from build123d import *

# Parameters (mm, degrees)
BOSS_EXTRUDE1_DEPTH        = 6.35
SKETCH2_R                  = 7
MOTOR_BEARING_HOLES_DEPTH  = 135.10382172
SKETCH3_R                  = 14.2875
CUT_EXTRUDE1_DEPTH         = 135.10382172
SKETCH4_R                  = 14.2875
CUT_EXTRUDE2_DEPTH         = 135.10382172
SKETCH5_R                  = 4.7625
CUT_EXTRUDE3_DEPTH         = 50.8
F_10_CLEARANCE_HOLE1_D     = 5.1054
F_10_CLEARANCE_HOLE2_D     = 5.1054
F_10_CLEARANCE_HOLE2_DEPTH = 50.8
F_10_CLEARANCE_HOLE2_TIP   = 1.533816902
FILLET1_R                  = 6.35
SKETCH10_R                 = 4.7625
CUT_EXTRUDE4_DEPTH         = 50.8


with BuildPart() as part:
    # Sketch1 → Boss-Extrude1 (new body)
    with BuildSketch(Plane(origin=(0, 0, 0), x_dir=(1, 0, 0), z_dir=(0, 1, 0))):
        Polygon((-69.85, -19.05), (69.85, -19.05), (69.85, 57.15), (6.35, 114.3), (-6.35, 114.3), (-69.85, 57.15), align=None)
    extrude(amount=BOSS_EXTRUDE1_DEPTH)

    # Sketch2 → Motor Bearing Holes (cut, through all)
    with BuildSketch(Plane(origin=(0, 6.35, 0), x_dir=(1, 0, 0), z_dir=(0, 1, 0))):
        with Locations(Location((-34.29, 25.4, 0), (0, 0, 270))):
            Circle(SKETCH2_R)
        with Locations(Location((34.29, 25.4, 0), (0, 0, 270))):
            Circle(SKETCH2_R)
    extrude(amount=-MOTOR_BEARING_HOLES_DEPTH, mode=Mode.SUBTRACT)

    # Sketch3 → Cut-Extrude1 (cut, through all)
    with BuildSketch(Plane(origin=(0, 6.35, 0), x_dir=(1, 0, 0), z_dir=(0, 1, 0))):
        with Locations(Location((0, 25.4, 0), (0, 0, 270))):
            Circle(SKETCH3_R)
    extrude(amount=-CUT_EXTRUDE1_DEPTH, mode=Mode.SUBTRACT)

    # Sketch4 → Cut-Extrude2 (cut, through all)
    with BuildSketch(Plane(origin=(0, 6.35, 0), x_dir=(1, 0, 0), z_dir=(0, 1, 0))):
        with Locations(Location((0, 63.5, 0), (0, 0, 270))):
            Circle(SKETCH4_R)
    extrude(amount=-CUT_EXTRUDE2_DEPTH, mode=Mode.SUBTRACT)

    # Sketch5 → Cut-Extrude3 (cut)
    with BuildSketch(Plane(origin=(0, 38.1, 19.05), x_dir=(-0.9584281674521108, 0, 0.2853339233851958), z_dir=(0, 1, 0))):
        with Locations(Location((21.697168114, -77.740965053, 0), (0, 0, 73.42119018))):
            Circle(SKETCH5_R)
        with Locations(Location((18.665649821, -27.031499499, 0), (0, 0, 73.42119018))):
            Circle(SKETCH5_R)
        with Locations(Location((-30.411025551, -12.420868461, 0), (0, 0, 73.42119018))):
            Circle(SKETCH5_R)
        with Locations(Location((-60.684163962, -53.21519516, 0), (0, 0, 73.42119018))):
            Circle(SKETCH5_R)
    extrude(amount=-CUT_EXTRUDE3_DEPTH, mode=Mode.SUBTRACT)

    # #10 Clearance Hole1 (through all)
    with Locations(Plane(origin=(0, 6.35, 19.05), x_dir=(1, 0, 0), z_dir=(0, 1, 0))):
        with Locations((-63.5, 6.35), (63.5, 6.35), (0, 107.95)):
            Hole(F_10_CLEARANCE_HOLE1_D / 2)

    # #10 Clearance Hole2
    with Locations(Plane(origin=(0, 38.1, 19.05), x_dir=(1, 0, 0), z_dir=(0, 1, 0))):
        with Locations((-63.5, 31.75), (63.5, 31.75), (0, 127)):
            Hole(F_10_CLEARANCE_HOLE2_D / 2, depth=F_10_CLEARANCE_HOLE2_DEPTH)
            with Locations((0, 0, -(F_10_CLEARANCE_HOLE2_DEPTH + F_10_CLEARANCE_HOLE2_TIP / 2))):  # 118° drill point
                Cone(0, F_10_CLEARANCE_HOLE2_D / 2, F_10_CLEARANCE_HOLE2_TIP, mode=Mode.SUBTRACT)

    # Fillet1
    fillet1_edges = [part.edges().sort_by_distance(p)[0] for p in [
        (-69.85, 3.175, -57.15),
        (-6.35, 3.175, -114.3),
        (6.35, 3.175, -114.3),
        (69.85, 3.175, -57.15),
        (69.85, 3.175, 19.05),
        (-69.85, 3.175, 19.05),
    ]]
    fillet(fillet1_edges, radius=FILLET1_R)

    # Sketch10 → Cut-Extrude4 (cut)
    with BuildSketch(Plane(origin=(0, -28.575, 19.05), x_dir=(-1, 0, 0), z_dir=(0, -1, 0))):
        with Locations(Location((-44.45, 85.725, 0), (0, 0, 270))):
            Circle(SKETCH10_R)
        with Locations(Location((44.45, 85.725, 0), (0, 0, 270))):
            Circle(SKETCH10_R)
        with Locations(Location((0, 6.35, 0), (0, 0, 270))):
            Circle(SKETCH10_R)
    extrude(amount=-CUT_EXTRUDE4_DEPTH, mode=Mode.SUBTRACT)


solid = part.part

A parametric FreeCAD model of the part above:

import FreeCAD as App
import Part
import Sketcher
Q = App.Units.Quantity


def edges_at(feature, points):
    """Names of the edges that pass closest to the given points."""
    edges = feature.Shape.Edges
    near = lambda p: min(range(len(edges)), key=lambda i: edges[i].distToShape(Part.Vertex(*p))[0])
    return sorted({f"Edge{near(p) + 1}" for p in points})


def add_polygon(sketch, points):
    """Adds a closed chain of lines whose ends are joined by coincident constraints."""
    first, n = sketch.GeometryCount, len(points)
    for a, b in zip(points, points[1:] + points[:1]):
        sketch.addGeometry(Part.LineSegment(App.Vector(*a, 0), App.Vector(*b, 0)), False)
    for i in range(n):
        sketch.addConstraint(Sketcher.Constraint("Coincident", first + i, 2, first + (i + 1) % n, 1))

doc = App.newDocument("Part")
body = doc.addObject("PartDesign::Body", "Body")

# Sketch on XZ plane
sketch1 = body.newObject("Sketcher::SketchObject", "Sketch")
sketch1.AttachmentSupport = (doc.getObject("XZ_Plane"), [""])
sketch1.MapMode = "FlatFace"
add_polygon(sketch1, [(-70, 19), (70, 19), (70, -57), (6, -114), (-6, -114), (-70, -57)])  # lines 0-5
sketch1.addConstraint([
    Sketcher.Constraint("Horizontal", 0),
    Sketcher.Constraint("Vertical", 1),
    Sketcher.Constraint("Horizontal", 3),
    Sketcher.Constraint("Vertical", 5),
    Sketcher.Constraint("Symmetric", 1, 2, 4, 2, -2),
    Sketcher.Constraint("Equal", 2, 4),
    Sketcher.Constraint("DistanceY", 1, 2, 1, 1, Q("3 in")),
    Sketcher.Constraint("DistanceX", 0, 1, 0, 2, Q("5.5 in")),
    Sketcher.Constraint("DistanceX", 3, 2, 3, 1, Q("0.5 in")),
    Sketcher.Constraint("DistanceY", 2, 2, -1, 1, Q("4.5 in")),
    Sketcher.Constraint("DistanceY", -1, 1, 0, 2, Q("0.75 in")),
])
pad1 = body.newObject("PartDesign::Pad", "Pad")
pad1.Profile = sketch1
pad1.Length = Q("0.25 in")
pad1.Reversed = True

# Sketch on XZ plane
sketch2 = body.newObject("Sketcher::SketchObject", "Sketch001")
sketch2.AttachmentSupport = (doc.getObject("XZ_Plane"), [""])
sketch2.MapMode = "FlatFace"
sketch2.AttachmentOffset = App.Placement(App.Vector(0, 0, -0.25 * 25.4), App.Rotation())
sketch2.addGeometry([
    Part.Circle(App.Vector(-34, -25, 0), App.Vector(0, 0, 1), 7),
    Part.Circle(App.Vector(34, -25, 0), App.Vector(0, 0, 1), 7),
], False)
sketch2.addConstraint([
    Sketcher.Constraint("Equal", 0, 1),
    Sketcher.Constraint("Symmetric", 0, 3, 1, 3, -2),
    Sketcher.Constraint("DistanceY", 0, 3, -1, 1, Q("1 in")),
    Sketcher.Constraint("DistanceX", 0, 3, 1, 3, Q("2.7 in")),
    Sketcher.Constraint("Diameter", 0, Q("14 mm")),
])
pocket1 = body.newObject("PartDesign::Pocket", "Pocket")
pocket1.Profile = sketch2
pocket1.Type = "ThroughAll"
pocket1.Reversed = True

# Sketch on XZ plane
sketch3 = body.newObject("Sketcher::SketchObject", "Sketch002")
sketch3.AttachmentSupport = (doc.getObject("XZ_Plane"), [""])
sketch3.MapMode = "FlatFace"
sketch3.AttachmentOffset = App.Placement(App.Vector(0, 0, -0.25 * 25.4), App.Rotation())
sketch3.addGeometry(Part.Circle(App.Vector(0, -25, 0), App.Vector(0, 0, 1), 14), False)
sketch3.addConstraint([
    Sketcher.Constraint("PointOnObject", 0, 3, -2),
    Sketcher.Constraint("Diameter", 0, Q("1.125 in")),
    Sketcher.Constraint("DistanceY", 0, 3, -1, 1, Q("1 in")),
])
pocket2 = body.newObject("PartDesign::Pocket", "Pocket001")
pocket2.Profile = sketch3
pocket2.Type = "ThroughAll"
pocket2.Reversed = True

# Sketch on XZ plane
sketch4 = body.newObject("Sketcher::SketchObject", "Sketch003")
sketch4.AttachmentSupport = (doc.getObject("XZ_Plane"), [""])
sketch4.MapMode = "FlatFace"
sketch4.AttachmentOffset = App.Placement(App.Vector(0, 0, -0.25 * 25.4), App.Rotation())
sketch4.addGeometry(Part.Circle(App.Vector(0, -64, 0), App.Vector(0, 0, 1), 14), False)
sketch4.addConstraint([
    Sketcher.Constraint("PointOnObject", 0, 3, -2),
    Sketcher.Constraint("Diameter", 0, Q("1.125 in")),
    Sketcher.Constraint("DistanceY", 0, 3, -1, 1, Q("2.5 in")),
])
pocket3 = body.newObject("PartDesign::Pocket", "Pocket002")
pocket3.Profile = sketch4
pocket3.Type = "ThroughAll"
pocket3.Reversed = True

# Sketch on XZ plane
sketch5 = body.newObject("Sketcher::SketchObject", "Sketch004")
sketch5.AttachmentSupport = (doc.getObject("XZ_Plane"), [""])
sketch5.MapMode = "FlatFace"
sketch5.AttachmentOffset = App.Placement(App.Vector(0, 0, -1.5 * 25.4), App.Rotation())
sketch5.addGeometry([
    Part.Circle(App.Vector(-43, -49.3, 0), App.Vector(0, 0, 1), 4.8),
    Part.Circle(App.Vector(-25.6, -1.5, 0), App.Vector(0, 0, 1), 4.8),
    Part.Circle(App.Vector(25.6, -1.5, 0), App.Vector(0, 0, 1), 4.8),
    Part.Circle(App.Vector(43, -49.3, 0), App.Vector(0, 0, 1), 4.8),
], False)
sketch5.addConstraint([
    Sketcher.Constraint("Equal", 0, 1),
    Sketcher.Constraint("Equal", 1, 2),
    Sketcher.Constraint("Equal", 2, 3),
    Sketcher.Constraint("Symmetric", 1, 3, 2, 3, -2),
    Sketcher.Constraint("Symmetric", 0, 3, 3, 3, -2),
    Sketcher.Constraint("Diameter", 0, Q("0.375 in")),
    Sketcher.Constraint("DistanceX", 0, 3, 2, 3, Q("2.7 in")),
    Sketcher.Constraint("DistanceX", 0, 3, -1, 1, Q("42.977312 mm")),
    Sketcher.Constraint("DistanceY", 0, 3, -1, 1, Q("49.268193 mm")),
    Sketcher.Constraint("DistanceY", 1, 3, -1, 1, Q("1.531807 mm")),
])
pocket4 = body.newObject("PartDesign::Pocket", "Pocket003")
pocket4.Profile = sketch5
pocket4.Length = Q("2 in")
pocket4.Reversed = True

# Sketch on XZ plane
sketch6 = body.newObject("Sketcher::SketchObject", "Sketch005")
sketch6.AttachmentSupport = (doc.getObject("XZ_Plane"), [""])
sketch6.MapMode = "FlatFace"
sketch6.AttachmentOffset = App.Placement(App.Vector(0, 0, -0.25 * 25.4), App.Rotation())
sketch6.addGeometry([
    Part.Circle(App.Vector(-63.5, 12.7, 0), App.Vector(0, 0, 1), 2.6),
    Part.Circle(App.Vector(63.5, 12.7, 0), App.Vector(0, 0, 1), 2.6),
    Part.Circle(App.Vector(0, -88.9, 0), App.Vector(0, 0, 1), 2.6),
], False)
sketch6.addConstraint([
    Sketcher.Constraint("Equal", 0, 1),
    Sketcher.Constraint("Equal", 1, 2),
    Sketcher.Constraint("Symmetric", 0, 3, 1, 3, -2),
    Sketcher.Constraint("PointOnObject", 2, 3, -2),
    Sketcher.Constraint("Diameter", 0, Q("0.201 in")),
    Sketcher.Constraint("DistanceX", 0, 3, 1, 3, Q("5 in")),
    Sketcher.Constraint("DistanceY", 2, 3, 0, 3, Q("4 in")),
    Sketcher.Constraint("DistanceY", -1, 1, 0, 3, Q("0.5 in")),
])
doc.recompute()
hole = body.newObject("PartDesign::Hole", "Hole")
hole.Profile = sketch6
hole.ThreadType = "None"
hole.Diameter = Q("0.201 in")
hole.DepthType = "ThroughAll"
hole.Reversed = True

# Sketch on XZ plane
sketch7 = body.newObject("Sketcher::SketchObject", "Sketch006")
sketch7.AttachmentSupport = (doc.getObject("XZ_Plane"), [""])
sketch7.MapMode = "FlatFace"
sketch7.AttachmentOffset = App.Placement(App.Vector(0, 0, -1.5 * 25.4), App.Rotation())
sketch7.addGeometry([
    Part.Circle(App.Vector(-63.5, -12.7, 0), App.Vector(0, 0, 1), 2.6),
    Part.Circle(App.Vector(63.5, -12.7, 0), App.Vector(0, 0, 1), 2.6),
    Part.Circle(App.Vector(0, -108, 0), App.Vector(0, 0, 1), 2.6),
], False)
sketch7.addConstraint([
    Sketcher.Constraint("Equal", 0, 1),
    Sketcher.Constraint("Equal", 1, 2),
    Sketcher.Constraint("Symmetric", 0, 3, 1, 3, -2),
    Sketcher.Constraint("PointOnObject", 2, 3, -2),
    Sketcher.Constraint("Diameter", 0, Q("0.201 in")),
    Sketcher.Constraint("DistanceX", 0, 3, 1, 3, Q("5 in")),
    Sketcher.Constraint("DistanceY", 0, 3, -1, 1, Q("0.5 in")),
    Sketcher.Constraint("DistanceY", 2, 3, -1, 1, Q("4.25 in")),
])
doc.recompute()
hole2 = body.newObject("PartDesign::Hole", "Hole001")
hole2.Profile = sketch7
hole2.ThreadType = "None"
hole2.Diameter = Q("0.201 in")
hole2.DepthType = "Dimension"
hole2.Depth = Q("2 in")
hole2.DrillPoint = "Angled"
hole2.DrillPointAngle = 118
hole2.Reversed = True
doc.recompute()

fillet = body.newObject("PartDesign::Fillet", "Fillet")
fillet.Base = (hole2, edges_at(hole2, [
    (-69.85, 3.175, -57.15),
    (-6.35, 3.175, -114.3),
    (6.35, 3.175, -114.3),
    (69.85, 3.175, -57.15),
    (69.85, 3.175, 19.05),
    (-69.85, 3.175, 19.05),
]))
fillet.Radius = Q("0.25 in")

# Sketch on XZ plane
sketch8 = body.newObject("Sketcher::SketchObject", "Sketch007")
sketch8.AttachmentSupport = (doc.getObject("XZ_Plane"), [""])
sketch8.MapMode = "FlatFace"
sketch8.AttachmentOffset = App.Placement(App.Vector(0, 0, 1.125 * 25.4), App.Rotation())
sketch8.addGeometry([
    Part.Circle(App.Vector(44.5, -66.7, 0), App.Vector(0, 0, 1), 4.8),
    Part.Circle(App.Vector(-44.5, -66.7, 0), App.Vector(0, 0, 1), 4.8),
    Part.Circle(App.Vector(0, 12.7, 0), App.Vector(0, 0, 1), 4.8),
], False)
sketch8.addConstraint([
    Sketcher.Constraint("Equal", 0, 1),
    Sketcher.Constraint("Equal", 1, 2),
    Sketcher.Constraint("Symmetric", 0, 3, 1, 3, -2),
    Sketcher.Constraint("PointOnObject", 2, 3, -2),
    Sketcher.Constraint("Diameter", 0, Q("0.375 in")),
    Sketcher.Constraint("DistanceY", -1, 1, 2, 3, Q("0.5 in")),
    Sketcher.Constraint("DistanceX", 1, 3, 0, 3, Q("3.5 in")),
    Sketcher.Constraint("DistanceY", 0, 3, -1, 1, Q("2.625 in")),
])
pocket5 = body.newObject("PartDesign::Pocket", "Pocket004")
pocket5.Profile = sketch8
pocket5.Length = Q("2 in")

doc.recompute()
